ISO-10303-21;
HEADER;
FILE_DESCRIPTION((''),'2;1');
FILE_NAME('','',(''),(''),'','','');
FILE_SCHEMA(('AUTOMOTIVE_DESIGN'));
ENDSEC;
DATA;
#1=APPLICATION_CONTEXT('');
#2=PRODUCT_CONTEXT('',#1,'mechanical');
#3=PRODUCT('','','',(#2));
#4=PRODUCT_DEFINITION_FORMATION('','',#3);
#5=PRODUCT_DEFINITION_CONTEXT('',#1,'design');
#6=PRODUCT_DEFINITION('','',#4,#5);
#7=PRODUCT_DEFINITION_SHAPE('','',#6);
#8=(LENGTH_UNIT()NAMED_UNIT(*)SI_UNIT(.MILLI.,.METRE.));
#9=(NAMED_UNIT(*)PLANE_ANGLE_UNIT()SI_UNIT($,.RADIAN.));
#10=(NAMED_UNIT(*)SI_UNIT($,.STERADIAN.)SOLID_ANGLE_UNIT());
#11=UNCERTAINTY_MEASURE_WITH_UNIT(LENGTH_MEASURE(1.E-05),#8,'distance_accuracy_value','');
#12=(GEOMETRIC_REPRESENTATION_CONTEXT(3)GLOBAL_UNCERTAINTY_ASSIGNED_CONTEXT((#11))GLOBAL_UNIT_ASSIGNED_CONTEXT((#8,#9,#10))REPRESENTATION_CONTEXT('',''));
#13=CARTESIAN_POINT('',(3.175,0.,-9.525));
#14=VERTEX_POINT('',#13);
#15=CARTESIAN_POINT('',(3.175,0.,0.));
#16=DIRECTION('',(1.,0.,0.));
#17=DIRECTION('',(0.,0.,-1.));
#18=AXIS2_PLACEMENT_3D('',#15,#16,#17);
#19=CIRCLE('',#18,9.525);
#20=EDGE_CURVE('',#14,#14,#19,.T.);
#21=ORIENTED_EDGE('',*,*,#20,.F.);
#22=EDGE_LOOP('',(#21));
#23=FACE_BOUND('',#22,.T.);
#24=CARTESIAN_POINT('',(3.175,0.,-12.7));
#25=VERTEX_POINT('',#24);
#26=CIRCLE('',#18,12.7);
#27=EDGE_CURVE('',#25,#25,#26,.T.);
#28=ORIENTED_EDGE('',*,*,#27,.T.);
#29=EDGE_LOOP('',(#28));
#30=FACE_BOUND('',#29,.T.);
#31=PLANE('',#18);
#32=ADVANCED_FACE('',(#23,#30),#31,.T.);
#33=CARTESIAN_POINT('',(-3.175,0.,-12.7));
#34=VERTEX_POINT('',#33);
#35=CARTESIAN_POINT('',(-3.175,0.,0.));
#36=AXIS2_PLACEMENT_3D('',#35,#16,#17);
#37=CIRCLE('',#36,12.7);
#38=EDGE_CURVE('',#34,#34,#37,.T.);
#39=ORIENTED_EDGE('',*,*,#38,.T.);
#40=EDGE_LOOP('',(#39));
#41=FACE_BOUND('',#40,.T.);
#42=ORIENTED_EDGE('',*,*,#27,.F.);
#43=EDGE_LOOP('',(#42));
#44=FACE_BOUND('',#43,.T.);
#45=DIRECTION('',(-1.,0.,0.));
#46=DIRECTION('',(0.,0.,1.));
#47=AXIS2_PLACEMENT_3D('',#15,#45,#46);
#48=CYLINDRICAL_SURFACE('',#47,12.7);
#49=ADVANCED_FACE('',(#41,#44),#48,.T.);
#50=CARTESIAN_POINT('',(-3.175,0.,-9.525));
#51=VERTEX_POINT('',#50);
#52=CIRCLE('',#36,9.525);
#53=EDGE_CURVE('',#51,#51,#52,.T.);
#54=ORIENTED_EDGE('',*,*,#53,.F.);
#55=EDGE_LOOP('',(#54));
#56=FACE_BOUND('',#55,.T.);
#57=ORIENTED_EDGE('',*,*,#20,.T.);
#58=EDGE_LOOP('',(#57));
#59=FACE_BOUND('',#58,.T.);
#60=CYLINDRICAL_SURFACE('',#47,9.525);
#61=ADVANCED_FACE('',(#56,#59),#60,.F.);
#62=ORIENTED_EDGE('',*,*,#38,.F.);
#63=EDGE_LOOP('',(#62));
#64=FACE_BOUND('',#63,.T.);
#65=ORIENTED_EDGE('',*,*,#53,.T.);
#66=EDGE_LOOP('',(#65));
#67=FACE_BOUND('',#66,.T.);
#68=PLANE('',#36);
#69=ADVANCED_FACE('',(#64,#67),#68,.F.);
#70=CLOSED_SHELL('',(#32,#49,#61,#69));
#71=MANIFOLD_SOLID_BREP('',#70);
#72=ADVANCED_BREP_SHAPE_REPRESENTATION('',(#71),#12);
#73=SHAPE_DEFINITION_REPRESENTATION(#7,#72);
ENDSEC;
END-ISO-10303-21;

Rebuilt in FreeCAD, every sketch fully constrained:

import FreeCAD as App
import Part
import Sketcher
from FreeCAD import Vector
Q = App.Units.Quantity

doc = App.newDocument("Part")
params = doc.addObject("Spreadsheet::Sheet", "Params")
for row, (alias, value) in enumerate([
    ("sketch1_diameter", "1 in"),
    ("sketch1_diameter2", "0.75 in"),
    ("pad1_length", "0.25 in"),
], start=1):
    params.set(f"A{row}", alias)
    params.set(f"B{row}", "=" + value)
    params.setAlias(f"B{row}", alias)

body = doc.addObject("PartDesign::Body", "Body")

sketch1 = body.newObject("Sketcher::SketchObject", "Sketch")
sketch1.AttachmentSupport = (doc.getObject("YZ_Plane"), [""])
sketch1.MapMode = "FlatFace"
sketch1.addGeometry(Part.Circle(Vector(0, 0, 0), Vector(0, 0, 1), 13), False)
sketch1.addGeometry(Part.Circle(Vector(0, 0, 0), Vector(0, 0, 1), 10), False)
sketch1.addConstraint(Sketcher.Constraint("Coincident", 0, 3, -1, 1))
sketch1.addConstraint(Sketcher.Constraint("Coincident", 1, 3, -1, 1))
sketch1.addConstraint(Sketcher.Constraint("Diameter", 0, Q("1 in")))
sketch1.addConstraint(Sketcher.Constraint("Diameter", 1, Q("0.75 in")))
sketch1.setExpression("Constraints[2]", "Params.sketch1_diameter")
sketch1.setExpression("Constraints[3]", "Params.sketch1_diameter2")
pad1 = body.newObject("PartDesign::Pad", "Pad")
pad1.Profile = sketch1
pad1.setExpression("Length", "Params.pad1_length")
pad1.Midplane = True

doc.recompute()
